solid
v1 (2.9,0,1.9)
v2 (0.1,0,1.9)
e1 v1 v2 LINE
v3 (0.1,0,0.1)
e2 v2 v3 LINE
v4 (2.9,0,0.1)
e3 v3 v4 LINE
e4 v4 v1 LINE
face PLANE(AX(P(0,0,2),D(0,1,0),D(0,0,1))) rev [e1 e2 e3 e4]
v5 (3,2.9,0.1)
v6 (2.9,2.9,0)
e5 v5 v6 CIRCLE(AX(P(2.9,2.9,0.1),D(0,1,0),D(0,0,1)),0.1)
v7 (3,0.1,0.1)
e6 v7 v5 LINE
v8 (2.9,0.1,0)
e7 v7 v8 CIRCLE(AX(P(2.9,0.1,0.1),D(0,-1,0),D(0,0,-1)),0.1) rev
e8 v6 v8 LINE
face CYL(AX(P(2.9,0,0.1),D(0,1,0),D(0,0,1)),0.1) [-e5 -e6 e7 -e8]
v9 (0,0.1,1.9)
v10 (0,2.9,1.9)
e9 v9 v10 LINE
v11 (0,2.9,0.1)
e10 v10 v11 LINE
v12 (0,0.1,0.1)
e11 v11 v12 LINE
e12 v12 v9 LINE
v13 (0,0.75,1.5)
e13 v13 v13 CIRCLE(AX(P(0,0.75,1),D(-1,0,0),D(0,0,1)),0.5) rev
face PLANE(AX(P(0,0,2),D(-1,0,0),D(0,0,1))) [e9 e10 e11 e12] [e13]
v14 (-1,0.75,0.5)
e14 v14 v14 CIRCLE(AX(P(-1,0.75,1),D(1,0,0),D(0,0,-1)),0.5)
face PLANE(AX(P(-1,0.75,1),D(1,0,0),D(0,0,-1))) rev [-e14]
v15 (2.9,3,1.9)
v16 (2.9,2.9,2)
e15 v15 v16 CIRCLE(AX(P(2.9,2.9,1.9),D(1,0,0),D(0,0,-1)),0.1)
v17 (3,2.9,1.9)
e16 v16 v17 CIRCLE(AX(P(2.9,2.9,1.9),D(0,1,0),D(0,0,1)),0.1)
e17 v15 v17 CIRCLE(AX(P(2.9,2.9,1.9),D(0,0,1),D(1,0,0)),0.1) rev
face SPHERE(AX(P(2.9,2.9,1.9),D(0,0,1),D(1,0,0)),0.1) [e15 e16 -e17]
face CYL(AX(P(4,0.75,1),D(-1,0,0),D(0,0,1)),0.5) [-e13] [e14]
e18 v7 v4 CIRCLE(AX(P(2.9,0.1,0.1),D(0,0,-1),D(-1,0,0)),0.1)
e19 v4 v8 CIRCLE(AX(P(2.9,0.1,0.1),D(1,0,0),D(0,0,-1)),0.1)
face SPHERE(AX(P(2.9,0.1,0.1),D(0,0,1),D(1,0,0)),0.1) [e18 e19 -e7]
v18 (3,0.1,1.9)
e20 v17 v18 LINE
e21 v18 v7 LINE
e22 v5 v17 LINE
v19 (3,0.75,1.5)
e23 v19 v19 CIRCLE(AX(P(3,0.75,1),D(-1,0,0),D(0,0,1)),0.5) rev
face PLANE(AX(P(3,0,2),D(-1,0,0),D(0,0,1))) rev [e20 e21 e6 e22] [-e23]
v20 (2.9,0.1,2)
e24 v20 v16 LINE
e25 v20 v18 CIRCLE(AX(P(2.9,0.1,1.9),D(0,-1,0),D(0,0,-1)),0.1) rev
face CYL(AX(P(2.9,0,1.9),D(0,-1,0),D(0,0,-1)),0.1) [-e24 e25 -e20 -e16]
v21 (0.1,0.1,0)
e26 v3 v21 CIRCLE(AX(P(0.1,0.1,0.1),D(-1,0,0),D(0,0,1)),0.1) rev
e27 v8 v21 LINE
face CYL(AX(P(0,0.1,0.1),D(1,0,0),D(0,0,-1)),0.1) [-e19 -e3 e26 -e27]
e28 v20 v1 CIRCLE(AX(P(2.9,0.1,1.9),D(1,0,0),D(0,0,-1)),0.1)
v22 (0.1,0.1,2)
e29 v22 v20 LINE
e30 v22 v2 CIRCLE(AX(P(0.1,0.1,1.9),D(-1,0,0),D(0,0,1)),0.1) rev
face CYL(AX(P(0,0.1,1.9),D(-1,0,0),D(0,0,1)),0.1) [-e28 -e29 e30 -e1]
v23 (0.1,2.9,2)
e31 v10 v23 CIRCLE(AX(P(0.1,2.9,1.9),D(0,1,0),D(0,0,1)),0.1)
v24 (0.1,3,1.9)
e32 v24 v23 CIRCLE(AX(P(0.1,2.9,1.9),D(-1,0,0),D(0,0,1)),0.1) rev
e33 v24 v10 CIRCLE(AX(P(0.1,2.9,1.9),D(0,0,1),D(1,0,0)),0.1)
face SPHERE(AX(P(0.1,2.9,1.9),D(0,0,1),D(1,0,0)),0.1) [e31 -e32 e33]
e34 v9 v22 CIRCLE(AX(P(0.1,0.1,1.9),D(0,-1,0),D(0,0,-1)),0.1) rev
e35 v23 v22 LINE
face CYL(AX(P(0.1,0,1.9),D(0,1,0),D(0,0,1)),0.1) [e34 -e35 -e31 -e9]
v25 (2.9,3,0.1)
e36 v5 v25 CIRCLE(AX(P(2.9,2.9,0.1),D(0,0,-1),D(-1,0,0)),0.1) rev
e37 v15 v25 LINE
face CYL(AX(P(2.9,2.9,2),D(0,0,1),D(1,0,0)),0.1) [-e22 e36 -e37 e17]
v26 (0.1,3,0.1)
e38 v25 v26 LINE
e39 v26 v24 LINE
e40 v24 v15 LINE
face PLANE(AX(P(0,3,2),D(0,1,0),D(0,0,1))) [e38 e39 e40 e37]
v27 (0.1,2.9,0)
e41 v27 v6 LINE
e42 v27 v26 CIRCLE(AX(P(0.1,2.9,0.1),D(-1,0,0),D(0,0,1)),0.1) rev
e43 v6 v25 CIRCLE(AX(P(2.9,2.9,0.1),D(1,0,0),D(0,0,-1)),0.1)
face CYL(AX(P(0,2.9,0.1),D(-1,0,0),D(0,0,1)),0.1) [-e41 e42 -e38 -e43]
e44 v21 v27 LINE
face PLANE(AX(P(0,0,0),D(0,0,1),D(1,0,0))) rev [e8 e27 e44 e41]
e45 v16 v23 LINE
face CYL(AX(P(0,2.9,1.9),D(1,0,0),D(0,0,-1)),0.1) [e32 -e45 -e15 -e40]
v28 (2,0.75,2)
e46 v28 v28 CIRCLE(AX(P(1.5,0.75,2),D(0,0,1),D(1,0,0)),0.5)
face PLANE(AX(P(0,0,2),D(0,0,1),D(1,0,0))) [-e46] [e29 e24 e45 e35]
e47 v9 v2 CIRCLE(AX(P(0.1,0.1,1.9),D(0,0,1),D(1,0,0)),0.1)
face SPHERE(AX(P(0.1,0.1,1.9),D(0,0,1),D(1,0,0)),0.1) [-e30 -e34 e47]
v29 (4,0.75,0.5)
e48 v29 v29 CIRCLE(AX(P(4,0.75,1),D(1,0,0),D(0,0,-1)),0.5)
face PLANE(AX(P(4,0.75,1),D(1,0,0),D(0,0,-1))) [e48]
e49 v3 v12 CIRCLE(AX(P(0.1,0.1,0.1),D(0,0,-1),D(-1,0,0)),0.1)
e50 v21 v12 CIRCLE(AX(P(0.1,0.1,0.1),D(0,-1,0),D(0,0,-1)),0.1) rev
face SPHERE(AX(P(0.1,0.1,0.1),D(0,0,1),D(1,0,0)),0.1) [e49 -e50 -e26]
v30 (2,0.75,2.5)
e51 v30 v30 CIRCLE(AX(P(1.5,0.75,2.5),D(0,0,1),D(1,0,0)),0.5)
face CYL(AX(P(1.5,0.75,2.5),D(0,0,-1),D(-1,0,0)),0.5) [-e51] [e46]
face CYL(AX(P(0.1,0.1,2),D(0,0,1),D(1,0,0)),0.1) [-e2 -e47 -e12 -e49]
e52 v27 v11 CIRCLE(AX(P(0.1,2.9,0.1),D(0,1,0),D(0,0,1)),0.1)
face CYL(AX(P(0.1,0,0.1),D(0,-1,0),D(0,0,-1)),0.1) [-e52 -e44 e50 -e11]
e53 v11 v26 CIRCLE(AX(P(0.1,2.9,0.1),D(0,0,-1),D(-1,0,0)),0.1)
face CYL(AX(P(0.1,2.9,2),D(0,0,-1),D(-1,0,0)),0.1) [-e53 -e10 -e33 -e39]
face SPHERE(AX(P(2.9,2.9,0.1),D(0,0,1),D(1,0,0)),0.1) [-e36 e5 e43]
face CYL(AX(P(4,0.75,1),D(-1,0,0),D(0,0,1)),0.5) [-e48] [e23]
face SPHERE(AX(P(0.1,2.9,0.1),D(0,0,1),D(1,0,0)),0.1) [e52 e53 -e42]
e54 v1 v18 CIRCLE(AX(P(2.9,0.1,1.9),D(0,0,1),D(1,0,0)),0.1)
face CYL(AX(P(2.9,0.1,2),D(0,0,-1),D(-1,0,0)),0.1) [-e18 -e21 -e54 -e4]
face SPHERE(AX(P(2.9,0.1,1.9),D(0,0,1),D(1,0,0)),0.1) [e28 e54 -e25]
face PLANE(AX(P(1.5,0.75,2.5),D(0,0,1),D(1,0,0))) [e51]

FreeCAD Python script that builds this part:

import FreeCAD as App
import Part
import Sketcher
from FreeCAD import Vector


def edges_at(feature, points):
    """Names of the edges that pass closest to the given points."""
    edges = feature.Shape.Edges
    near = lambda p: min(range(len(edges)), key=lambda i: edges[i].distToShape(Part.Vertex(*p))[0])
    return sorted({f"Edge{near(p) + 1}" for p in points})

doc = App.newDocument("Part")
body = doc.addObject("PartDesign::Body", "Body")

# Sketch on XY plane
sketch1 = body.newObject("Sketcher::SketchObject", "Sketch")
sketch1.AttachmentSupport = (doc.getObject("XY_Plane"), [""])
sketch1.MapMode = "FlatFace"
sketch1.addGeometry(Part.LineSegment(Vector(0, 3, 0), Vector(0, 0, 0)), False)
sketch1.addGeometry(Part.LineSegment(Vector(0, 0, 0), Vector(3, 0, 0)), False)
sketch1.addGeometry(Part.LineSegment(Vector(3, 0, 0), Vector(3, 3, 0)), False)
sketch1.addGeometry(Part.LineSegment(Vector(3, 3, 0), Vector(0, 3, 0)), False)
sketch1.addConstraint(Sketcher.Constraint("Coincident", 0, 2, 1, 1))
sketch1.addConstraint(Sketcher.Constraint("Coincident", 1, 2, 2, 1))
sketch1.addConstraint(Sketcher.Constraint("Coincident", 2, 2, 3, 1))
sketch1.addConstraint(Sketcher.Constraint("Coincident", 3, 2, 0, 1))
sketch1.addConstraint(Sketcher.Constraint("Vertical", 0))
sketch1.addConstraint(Sketcher.Constraint("Horizontal", 1))
sketch1.addConstraint(Sketcher.Constraint("Vertical", 2))
sketch1.addConstraint(Sketcher.Constraint("Horizontal", 3))
sketch1.addConstraint(Sketcher.Constraint("Coincident", 0, 2, -1, 1))
sketch1.addConstraint(Sketcher.Constraint("Equal", 3, 0))
sketch1.addConstraint(Sketcher.Constraint("DistanceX", 1, 1, 1, 2, 3.0))
pad1 = body.newObject("PartDesign::Pad", "Pad")
pad1.Profile = sketch1
pad1.Length = 2

# Sketch on YZ plane
sketch2 = body.newObject("Sketcher::SketchObject", "Sketch001")
sketch2.AttachmentSupport = (doc.getObject("YZ_Plane"), [""])
sketch2.MapMode = "FlatFace"
sketch2.AttachmentOffset = App.Placement(Vector(0, 0, 1.5), App.Rotation())
sketch2.addGeometry(Part.Circle(Vector(0.75, 1, 0), Vector(0, 0, 1), 0.5), False)
sketch2.addConstraint(Sketcher.Constraint("Diameter", 0, 1.0))
sketch2.addConstraint(Sketcher.Constraint("DistanceY", -1, 1, 0, 3, 1.0))
sketch2.addConstraint(Sketcher.Constraint("DistanceX", -1, 1, 0, 3, 0.75))
pad2 = body.newObject("PartDesign::Pad", "Pad001")
pad2.Profile = sketch2
pad2.Length = 5
pad2.Midplane = True
doc.recompute()

fillet = body.newObject("PartDesign::Fillet", "Fillet")
fillet.Base = (pad2, edges_at(pad2, [
    (1.5, 3, 2),
    (0, 1.5, 2),
    (1.5, 0, 2),
    (0, 1.5, 0),
    (1.5, 3, 0),
    (3, 1.5, 0),
    (1.5, 0, 0),
    (3, 1.5, 2),
    (0, 0, 1),
    (0, 3, 1),
    (3, 3, 1),
    (3, 0, 1),
]))
fillet.Radius = 0.1

# Sketch on XY plane
sketch3 = body.newObject("Sketcher::SketchObject", "Sketch002")
sketch3.AttachmentSupport = (doc.getObject("XY_Plane"), [""])
sketch3.MapMode = "FlatFace"
sketch3.AttachmentOffset = App.Placement(Vector(0, 0, 2), App.Rotation())
sketch3.addGeometry(Part.Circle(Vector(1.5, 0.75, 0), Vector(0, 0, 1), 0.5), False)
sketch3.addConstraint(Sketcher.Constraint("Diameter", 0, 1.0))
sketch3.addConstraint(Sketcher.Constraint("DistanceX", -1, 1, 0, 3, 1.5))
sketch3.addConstraint(Sketcher.Constraint("DistanceY", -1, 1, 0, 3, 0.75))
pad3 = body.newObject("PartDesign::Pad", "Pad002")
pad3.Profile = sketch3
pad3.Length = 0.5

doc.recompute()
